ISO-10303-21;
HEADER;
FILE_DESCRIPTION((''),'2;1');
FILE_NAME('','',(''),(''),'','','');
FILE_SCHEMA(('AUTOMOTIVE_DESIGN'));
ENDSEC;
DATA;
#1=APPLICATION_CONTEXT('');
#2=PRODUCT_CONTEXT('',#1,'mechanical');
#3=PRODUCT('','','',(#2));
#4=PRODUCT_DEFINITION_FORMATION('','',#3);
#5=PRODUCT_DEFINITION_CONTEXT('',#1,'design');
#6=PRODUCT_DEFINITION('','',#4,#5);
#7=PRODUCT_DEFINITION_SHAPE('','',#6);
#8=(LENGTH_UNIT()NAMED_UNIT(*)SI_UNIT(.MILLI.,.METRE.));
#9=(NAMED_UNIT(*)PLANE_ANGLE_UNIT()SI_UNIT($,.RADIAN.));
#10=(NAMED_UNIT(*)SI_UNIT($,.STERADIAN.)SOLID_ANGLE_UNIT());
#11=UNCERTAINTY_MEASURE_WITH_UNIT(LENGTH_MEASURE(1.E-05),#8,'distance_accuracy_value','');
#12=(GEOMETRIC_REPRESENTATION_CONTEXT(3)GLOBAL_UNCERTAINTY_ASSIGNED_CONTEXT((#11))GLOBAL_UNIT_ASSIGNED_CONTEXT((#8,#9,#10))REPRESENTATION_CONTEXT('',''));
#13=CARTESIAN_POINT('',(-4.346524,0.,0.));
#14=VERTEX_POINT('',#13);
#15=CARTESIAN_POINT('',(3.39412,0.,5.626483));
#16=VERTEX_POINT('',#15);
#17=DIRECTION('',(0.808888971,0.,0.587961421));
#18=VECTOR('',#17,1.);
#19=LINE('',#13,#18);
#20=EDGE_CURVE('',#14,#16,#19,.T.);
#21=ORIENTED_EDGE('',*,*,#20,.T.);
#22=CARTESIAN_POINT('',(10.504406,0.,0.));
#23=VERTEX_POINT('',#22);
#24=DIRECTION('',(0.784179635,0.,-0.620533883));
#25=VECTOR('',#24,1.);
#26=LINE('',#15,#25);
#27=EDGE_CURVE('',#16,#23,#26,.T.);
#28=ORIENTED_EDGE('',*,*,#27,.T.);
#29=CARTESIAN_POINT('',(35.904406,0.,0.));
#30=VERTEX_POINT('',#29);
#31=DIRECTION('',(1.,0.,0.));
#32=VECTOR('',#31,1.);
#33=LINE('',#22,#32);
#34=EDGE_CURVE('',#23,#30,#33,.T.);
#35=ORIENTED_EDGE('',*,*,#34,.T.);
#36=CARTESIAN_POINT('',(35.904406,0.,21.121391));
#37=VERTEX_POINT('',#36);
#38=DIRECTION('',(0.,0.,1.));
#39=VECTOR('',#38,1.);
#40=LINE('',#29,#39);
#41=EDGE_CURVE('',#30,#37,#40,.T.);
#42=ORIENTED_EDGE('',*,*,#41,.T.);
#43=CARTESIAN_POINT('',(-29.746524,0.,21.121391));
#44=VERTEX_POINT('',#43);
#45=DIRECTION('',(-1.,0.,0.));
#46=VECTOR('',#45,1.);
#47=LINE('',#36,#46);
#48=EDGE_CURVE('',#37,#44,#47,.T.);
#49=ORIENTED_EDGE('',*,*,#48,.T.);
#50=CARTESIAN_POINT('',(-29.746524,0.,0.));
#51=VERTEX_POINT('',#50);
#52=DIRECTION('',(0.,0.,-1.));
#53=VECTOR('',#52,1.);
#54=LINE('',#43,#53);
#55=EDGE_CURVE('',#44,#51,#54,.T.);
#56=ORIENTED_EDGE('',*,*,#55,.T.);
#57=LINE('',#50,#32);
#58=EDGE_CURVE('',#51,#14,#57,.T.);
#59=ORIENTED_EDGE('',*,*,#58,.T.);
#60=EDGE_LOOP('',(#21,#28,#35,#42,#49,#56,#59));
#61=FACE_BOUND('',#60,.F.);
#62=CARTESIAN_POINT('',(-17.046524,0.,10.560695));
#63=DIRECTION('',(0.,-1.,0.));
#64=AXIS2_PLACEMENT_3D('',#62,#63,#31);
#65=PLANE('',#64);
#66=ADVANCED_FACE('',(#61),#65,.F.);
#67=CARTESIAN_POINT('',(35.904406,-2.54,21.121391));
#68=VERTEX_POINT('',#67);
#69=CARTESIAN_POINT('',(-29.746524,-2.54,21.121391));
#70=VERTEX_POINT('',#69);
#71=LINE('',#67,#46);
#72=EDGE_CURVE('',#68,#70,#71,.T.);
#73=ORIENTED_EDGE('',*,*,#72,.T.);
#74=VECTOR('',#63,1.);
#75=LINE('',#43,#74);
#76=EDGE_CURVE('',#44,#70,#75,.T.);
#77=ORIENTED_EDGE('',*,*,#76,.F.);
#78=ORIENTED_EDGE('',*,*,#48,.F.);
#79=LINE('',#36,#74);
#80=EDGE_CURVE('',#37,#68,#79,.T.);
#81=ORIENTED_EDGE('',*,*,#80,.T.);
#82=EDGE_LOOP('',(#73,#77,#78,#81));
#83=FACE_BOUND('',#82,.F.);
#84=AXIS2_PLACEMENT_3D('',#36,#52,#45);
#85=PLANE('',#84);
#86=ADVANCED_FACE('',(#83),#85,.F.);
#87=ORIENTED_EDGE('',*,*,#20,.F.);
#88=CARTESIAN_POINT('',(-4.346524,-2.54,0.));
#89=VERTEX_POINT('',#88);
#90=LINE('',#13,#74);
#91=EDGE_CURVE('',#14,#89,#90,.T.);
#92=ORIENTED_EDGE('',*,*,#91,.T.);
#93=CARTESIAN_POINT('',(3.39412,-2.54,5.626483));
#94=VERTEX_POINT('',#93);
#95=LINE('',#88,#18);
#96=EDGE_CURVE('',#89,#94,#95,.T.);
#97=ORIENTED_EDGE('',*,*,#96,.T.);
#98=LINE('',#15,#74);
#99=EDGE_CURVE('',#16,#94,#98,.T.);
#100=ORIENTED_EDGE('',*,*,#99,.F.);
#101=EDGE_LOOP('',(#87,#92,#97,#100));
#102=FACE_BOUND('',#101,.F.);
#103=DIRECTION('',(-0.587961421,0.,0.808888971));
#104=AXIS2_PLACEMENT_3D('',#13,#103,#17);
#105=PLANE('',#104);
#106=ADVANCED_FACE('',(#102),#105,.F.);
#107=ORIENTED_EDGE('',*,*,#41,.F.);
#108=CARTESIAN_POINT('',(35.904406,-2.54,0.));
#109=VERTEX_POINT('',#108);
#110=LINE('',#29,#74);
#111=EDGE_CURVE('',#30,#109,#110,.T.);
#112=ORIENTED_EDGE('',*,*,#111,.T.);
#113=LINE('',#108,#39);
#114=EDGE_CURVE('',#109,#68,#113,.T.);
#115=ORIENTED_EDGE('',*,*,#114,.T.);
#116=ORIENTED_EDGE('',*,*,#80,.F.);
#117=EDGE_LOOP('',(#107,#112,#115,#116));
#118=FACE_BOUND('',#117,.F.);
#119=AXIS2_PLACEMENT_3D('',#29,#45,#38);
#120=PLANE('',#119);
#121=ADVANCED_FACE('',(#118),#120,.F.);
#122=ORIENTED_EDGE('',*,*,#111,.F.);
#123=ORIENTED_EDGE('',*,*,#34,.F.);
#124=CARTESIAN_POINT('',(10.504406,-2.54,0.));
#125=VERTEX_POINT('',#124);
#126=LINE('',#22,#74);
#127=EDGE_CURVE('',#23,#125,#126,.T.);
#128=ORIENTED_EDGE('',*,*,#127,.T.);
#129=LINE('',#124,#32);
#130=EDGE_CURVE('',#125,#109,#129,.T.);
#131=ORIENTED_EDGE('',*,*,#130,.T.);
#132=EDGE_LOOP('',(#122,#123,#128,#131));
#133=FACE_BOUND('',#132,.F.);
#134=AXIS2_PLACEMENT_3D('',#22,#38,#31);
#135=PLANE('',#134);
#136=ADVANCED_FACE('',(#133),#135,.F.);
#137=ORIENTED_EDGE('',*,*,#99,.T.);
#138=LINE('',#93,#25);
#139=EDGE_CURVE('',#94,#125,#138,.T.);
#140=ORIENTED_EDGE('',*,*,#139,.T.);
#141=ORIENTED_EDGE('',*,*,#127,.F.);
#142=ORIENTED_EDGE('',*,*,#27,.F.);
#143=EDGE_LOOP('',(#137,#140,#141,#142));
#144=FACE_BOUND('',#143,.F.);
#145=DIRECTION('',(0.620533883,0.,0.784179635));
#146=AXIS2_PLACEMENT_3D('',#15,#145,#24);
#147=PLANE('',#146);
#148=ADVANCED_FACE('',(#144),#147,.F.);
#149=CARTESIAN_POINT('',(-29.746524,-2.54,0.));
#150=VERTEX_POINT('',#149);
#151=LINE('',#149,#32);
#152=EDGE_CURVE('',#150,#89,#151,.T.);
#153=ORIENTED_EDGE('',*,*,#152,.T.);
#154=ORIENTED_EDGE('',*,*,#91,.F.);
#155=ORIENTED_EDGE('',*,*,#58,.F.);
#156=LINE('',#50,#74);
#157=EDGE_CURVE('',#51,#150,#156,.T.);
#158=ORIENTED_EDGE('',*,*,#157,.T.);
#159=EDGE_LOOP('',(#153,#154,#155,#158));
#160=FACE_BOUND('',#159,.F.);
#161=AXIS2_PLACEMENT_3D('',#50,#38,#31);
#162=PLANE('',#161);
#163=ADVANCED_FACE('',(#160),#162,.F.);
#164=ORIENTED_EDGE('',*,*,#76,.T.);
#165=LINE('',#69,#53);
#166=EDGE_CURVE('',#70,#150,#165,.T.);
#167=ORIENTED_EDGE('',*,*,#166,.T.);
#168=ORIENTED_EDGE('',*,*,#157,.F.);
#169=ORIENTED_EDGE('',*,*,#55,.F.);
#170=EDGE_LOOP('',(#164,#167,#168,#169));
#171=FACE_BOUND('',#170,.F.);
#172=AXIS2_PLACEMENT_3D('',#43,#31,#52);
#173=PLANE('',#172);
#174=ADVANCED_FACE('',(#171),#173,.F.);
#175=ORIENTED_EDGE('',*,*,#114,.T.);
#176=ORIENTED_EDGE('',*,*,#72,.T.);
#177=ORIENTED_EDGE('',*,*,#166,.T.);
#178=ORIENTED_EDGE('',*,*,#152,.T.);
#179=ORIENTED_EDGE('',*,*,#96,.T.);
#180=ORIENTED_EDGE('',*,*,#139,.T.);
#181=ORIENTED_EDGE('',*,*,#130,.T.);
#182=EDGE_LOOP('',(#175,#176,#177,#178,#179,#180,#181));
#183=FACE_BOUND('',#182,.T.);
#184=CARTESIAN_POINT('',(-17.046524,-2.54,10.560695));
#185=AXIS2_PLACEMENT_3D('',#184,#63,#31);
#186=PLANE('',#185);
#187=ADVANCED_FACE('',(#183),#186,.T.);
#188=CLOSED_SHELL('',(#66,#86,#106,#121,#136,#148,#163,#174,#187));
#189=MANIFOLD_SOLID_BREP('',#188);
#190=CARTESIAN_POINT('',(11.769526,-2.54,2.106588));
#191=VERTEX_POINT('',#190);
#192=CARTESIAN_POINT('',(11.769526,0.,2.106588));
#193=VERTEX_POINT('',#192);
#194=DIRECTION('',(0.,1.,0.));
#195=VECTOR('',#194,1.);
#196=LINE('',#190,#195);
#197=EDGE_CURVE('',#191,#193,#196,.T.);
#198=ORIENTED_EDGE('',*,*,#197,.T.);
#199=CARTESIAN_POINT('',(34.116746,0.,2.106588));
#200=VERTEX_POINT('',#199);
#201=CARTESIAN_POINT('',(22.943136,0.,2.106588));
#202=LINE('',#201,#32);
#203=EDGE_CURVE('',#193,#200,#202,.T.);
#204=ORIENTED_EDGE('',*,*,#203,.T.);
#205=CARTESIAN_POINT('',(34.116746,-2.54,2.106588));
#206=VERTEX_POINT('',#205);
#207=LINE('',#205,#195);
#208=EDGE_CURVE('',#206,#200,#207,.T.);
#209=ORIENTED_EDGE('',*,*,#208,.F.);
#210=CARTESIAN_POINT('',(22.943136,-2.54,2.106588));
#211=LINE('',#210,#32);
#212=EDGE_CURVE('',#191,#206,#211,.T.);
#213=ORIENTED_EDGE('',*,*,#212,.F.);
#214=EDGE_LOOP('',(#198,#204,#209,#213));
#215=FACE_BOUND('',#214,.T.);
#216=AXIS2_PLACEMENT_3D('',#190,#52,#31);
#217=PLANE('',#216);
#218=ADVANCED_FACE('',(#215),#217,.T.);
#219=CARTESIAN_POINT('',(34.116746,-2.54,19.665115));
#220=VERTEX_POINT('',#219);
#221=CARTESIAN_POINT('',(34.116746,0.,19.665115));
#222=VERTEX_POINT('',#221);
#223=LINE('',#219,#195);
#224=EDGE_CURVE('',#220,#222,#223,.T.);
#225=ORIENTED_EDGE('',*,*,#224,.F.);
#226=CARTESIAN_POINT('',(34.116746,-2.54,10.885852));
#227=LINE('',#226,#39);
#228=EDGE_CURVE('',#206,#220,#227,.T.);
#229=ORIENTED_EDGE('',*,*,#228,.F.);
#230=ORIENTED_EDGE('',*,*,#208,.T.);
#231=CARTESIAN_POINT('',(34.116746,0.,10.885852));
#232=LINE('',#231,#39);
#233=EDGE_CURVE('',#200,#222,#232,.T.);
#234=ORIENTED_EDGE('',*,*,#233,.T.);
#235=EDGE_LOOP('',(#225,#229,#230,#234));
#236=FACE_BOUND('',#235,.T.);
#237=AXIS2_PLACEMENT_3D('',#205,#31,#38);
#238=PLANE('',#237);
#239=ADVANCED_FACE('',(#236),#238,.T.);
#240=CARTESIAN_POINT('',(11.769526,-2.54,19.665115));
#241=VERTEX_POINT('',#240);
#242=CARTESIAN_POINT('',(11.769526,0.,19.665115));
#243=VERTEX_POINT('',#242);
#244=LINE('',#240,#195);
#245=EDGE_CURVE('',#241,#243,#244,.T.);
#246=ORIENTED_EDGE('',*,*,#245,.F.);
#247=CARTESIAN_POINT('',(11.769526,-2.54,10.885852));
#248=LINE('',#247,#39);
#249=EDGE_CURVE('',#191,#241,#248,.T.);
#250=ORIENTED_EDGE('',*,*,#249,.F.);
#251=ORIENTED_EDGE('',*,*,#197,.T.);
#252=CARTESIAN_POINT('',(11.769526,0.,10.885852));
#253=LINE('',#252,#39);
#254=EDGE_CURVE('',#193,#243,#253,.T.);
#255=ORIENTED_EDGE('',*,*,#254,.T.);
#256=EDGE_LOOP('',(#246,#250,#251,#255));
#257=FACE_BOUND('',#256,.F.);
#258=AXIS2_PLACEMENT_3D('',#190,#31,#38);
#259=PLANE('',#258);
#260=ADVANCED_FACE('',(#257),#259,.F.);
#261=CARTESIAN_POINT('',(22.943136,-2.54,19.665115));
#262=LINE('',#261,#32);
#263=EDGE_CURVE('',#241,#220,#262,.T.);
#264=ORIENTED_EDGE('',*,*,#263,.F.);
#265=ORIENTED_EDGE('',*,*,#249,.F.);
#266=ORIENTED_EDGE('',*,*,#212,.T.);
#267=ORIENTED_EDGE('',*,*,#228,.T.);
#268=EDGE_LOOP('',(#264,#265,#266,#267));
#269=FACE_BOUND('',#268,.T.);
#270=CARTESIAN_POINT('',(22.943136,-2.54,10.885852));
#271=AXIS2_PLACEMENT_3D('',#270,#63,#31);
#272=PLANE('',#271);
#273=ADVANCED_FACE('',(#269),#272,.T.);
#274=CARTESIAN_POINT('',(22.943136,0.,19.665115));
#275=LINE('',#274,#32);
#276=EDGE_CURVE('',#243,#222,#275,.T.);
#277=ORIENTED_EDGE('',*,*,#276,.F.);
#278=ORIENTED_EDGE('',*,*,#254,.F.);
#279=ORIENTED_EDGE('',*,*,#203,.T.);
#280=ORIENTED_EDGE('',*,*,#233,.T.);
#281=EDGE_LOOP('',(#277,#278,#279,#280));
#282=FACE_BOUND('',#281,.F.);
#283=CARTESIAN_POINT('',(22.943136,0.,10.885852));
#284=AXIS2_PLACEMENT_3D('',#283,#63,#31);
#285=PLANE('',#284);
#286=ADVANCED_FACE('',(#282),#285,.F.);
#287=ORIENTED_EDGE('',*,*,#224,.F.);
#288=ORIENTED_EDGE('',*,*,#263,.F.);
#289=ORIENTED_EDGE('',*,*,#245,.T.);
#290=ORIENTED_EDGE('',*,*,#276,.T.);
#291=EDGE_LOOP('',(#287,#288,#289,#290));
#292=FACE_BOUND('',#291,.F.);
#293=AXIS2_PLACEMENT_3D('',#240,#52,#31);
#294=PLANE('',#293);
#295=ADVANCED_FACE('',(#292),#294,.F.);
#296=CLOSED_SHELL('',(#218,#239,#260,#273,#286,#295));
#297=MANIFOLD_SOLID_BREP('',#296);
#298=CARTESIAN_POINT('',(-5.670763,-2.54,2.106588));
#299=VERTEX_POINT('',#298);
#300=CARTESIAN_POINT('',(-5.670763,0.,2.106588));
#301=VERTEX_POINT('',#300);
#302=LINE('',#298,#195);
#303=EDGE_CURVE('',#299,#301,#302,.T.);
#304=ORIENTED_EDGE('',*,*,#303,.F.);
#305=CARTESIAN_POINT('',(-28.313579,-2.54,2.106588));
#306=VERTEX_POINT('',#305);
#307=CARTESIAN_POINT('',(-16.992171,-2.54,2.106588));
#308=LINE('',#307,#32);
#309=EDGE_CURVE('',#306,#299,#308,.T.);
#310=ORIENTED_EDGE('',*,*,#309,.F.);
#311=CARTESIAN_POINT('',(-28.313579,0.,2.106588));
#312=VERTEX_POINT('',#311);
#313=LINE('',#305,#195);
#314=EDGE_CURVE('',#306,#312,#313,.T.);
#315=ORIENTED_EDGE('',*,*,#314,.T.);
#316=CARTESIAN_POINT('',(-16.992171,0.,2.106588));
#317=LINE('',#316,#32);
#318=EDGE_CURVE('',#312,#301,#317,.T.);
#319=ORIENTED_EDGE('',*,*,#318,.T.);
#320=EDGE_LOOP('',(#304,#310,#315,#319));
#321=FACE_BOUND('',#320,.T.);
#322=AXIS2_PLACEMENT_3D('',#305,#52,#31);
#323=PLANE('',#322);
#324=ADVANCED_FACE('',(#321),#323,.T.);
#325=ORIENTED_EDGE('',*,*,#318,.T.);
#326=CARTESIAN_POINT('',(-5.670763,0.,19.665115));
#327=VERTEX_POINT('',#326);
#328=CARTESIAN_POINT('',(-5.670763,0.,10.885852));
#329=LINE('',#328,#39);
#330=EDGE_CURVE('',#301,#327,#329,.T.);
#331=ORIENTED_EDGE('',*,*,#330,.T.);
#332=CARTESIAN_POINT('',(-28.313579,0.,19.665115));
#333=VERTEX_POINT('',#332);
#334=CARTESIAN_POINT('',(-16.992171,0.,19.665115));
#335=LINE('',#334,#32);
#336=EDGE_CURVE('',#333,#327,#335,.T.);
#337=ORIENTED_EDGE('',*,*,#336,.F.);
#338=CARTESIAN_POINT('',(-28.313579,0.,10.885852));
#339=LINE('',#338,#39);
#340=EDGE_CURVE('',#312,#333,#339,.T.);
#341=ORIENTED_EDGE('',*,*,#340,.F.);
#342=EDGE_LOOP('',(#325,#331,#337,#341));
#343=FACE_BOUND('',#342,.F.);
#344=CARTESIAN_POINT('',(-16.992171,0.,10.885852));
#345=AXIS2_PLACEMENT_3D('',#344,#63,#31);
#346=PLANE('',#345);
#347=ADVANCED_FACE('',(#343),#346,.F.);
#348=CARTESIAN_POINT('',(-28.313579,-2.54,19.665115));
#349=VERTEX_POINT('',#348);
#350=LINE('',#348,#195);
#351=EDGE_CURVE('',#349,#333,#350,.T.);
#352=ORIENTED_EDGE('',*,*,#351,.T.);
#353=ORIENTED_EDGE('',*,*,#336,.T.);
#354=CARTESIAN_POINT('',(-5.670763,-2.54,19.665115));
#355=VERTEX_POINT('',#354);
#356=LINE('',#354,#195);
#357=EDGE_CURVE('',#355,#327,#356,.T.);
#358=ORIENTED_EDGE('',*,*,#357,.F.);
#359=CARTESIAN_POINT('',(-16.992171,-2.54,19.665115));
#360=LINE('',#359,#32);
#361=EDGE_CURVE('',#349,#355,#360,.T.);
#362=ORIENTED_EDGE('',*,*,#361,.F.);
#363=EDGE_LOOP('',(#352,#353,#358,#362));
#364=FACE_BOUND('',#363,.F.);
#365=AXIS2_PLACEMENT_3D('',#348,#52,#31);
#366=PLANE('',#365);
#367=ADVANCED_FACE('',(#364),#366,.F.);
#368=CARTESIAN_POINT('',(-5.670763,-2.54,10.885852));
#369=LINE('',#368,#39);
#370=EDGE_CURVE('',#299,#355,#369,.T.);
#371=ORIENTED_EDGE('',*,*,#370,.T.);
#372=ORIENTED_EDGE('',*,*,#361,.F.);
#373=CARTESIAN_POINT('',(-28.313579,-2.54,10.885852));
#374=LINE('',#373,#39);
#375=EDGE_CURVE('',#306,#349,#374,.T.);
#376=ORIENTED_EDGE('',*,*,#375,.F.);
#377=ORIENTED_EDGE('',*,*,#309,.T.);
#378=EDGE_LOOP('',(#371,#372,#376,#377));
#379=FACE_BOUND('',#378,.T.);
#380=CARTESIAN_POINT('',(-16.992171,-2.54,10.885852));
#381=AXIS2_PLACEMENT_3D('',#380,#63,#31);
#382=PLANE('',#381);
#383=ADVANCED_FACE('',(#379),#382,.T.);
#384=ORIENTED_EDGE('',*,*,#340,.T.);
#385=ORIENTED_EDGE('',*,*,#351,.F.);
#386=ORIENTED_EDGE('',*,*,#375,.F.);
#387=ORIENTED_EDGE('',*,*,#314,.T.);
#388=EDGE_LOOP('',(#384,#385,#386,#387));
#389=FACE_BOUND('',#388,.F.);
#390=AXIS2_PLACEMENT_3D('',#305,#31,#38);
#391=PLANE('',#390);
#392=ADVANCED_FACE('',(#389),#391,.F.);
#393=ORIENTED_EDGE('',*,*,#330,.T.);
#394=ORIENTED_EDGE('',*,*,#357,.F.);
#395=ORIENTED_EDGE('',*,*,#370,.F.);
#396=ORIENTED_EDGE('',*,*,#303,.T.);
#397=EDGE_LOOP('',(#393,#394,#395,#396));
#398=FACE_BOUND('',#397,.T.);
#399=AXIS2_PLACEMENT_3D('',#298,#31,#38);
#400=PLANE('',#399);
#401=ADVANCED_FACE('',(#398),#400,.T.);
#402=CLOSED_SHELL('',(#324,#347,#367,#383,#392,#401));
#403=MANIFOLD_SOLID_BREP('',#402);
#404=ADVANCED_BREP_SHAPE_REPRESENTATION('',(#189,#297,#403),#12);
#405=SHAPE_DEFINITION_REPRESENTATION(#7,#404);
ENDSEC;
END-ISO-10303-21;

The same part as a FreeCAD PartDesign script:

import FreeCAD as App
import Part
import Sketcher
Q = App.Units.Quantity


def add_polygon(sketch, points):
    """Adds a closed chain of lines whose ends are joined by coincident constraints."""
    first, n = sketch.GeometryCount, len(points)
    for a, b in zip(points, points[1:] + points[:1]):
        sketch.addGeometry(Part.LineSegment(App.Vector(*a, 0), App.Vector(*b, 0)), False)
    for i in range(n):
        sketch.addConstraint(Sketcher.Constraint("Coincident", first + i, 2, first + (i + 1) % n, 1))

doc = App.newDocument("Part")
body = doc.addObject("PartDesign::Body", "Body")

# Sketch on XZ plane
sketch1 = body.newObject("Sketcher::SketchObject", "Sketch")
sketch1.AttachmentSupport = (doc.getObject("XZ_Plane"), [""])
sketch1.MapMode = "FlatFace"
add_polygon(sketch1, [(-30, 21), (-30, 0), (-4, 0), (3, 6), (11, 0), (36, 0), (36, 21)])  # lines 0-6
sketch1.addConstraint(Sketcher.Constraint("Vertical", 0))
sketch1.addConstraint(Sketcher.Constraint("Horizontal", 1))
sketch1.addConstraint(Sketcher.Constraint("Horizontal", 4))
sketch1.addConstraint(Sketcher.Constraint("Vertical", 5))
sketch1.addConstraint(Sketcher.Constraint("Horizontal", 6))
sketch1.addConstraint(Sketcher.Constraint("PointOnObject", 0, 2, -1))
sketch1.addConstraint(Sketcher.Constraint("PointOnObject", 3, 2, -1))
sketch1.addConstraint(Sketcher.Constraint("Equal", 1, 4))
sketch1.addConstraint(Sketcher.Constraint("DistanceX", 1, 1, 1, 2, Q("1 in")))
sketch1.addConstraint(Sketcher.Constraint("DistanceX", 6, 2, 6, 1, 65.65093))
sketch1.addConstraint(Sketcher.Constraint("DistanceY", 0, 2, 0, 1, 21.121391))
sketch1.addConstraint(Sketcher.Constraint("DistanceX", -1, 1, 2, 2, 3.39412))
sketch1.addConstraint(Sketcher.Constraint("Distance", 2, 9.569476))
sketch1.addConstraint(Sketcher.Constraint("Distance", 3, 9.067165))
pad1 = body.newObject("PartDesign::Pad", "Pad")
pad1.Profile = sketch1
pad1.Length = Q("0.1 in")
body2 = doc.addObject("PartDesign::Body", "Body001")
body2.AllowCompound = True

# Sketch on XZ plane
sketch2 = body2.newObject("Sketcher::SketchObject", "Sketch001")
sketch2.AttachmentSupport = (doc.getObject("XZ_Plane001"), [""])
sketch2.MapMode = "FlatFace"
sketch2.AttachmentOffset = App.Placement(App.Vector(0, 0, 0.1 * 25.4), App.Rotation())
add_polygon(sketch2, [(-28, 20), (-28, 2), (-6, 2), (-6, 20)])  # lines 0-3
add_polygon(sketch2, [(12, 20), (12, 2), (34, 2), (34, 20)])  # lines 4-7
sketch2.addConstraint(Sketcher.Constraint("Vertical", 0))
sketch2.addConstraint(Sketcher.Constraint("Horizontal", 1))
sketch2.addConstraint(Sketcher.Constraint("Vertical", 2))
sketch2.addConstraint(Sketcher.Constraint("Horizontal", 3))
sketch2.addConstraint(Sketcher.Constraint("Vertical", 4))
sketch2.addConstraint(Sketcher.Constraint("Horizontal", 5))
sketch2.addConstraint(Sketcher.Constraint("Vertical", 6))
sketch2.addConstraint(Sketcher.Constraint("Horizontal", 7))
sketch2.addConstraint(Sketcher.Constraint("Horizontal", 1, 2, 4, 2))
sketch2.addConstraint(Sketcher.Constraint("Horizontal", 3, 2, 6, 2))
sketch2.addConstraint(Sketcher.Constraint("DistanceX", 5, 1, 5, 2, 22.347219))
sketch2.addConstraint(Sketcher.Constraint("DistanceX", 1, 1, 1, 2, 22.642816))
sketch2.addConstraint(Sketcher.Constraint("DistanceY", 0, 2, 0, 1, 17.558527))
sketch2.addConstraint(Sketcher.Constraint("DistanceX", 0, 2, -1, 1, 28.313579))
sketch2.addConstraint(Sketcher.Constraint("DistanceY", -1, 1, 0, 2, 2.106588))
sketch2.addConstraint(Sketcher.Constraint("DistanceX", 1, 2, 4, 2, 17.440289))
pad2 = body2.newObject("PartDesign::Pad", "Pad001")
pad2.Profile = sketch2
pad2.Length = Q("0.1 in")
pad2.Reversed = True

doc.recompute()
